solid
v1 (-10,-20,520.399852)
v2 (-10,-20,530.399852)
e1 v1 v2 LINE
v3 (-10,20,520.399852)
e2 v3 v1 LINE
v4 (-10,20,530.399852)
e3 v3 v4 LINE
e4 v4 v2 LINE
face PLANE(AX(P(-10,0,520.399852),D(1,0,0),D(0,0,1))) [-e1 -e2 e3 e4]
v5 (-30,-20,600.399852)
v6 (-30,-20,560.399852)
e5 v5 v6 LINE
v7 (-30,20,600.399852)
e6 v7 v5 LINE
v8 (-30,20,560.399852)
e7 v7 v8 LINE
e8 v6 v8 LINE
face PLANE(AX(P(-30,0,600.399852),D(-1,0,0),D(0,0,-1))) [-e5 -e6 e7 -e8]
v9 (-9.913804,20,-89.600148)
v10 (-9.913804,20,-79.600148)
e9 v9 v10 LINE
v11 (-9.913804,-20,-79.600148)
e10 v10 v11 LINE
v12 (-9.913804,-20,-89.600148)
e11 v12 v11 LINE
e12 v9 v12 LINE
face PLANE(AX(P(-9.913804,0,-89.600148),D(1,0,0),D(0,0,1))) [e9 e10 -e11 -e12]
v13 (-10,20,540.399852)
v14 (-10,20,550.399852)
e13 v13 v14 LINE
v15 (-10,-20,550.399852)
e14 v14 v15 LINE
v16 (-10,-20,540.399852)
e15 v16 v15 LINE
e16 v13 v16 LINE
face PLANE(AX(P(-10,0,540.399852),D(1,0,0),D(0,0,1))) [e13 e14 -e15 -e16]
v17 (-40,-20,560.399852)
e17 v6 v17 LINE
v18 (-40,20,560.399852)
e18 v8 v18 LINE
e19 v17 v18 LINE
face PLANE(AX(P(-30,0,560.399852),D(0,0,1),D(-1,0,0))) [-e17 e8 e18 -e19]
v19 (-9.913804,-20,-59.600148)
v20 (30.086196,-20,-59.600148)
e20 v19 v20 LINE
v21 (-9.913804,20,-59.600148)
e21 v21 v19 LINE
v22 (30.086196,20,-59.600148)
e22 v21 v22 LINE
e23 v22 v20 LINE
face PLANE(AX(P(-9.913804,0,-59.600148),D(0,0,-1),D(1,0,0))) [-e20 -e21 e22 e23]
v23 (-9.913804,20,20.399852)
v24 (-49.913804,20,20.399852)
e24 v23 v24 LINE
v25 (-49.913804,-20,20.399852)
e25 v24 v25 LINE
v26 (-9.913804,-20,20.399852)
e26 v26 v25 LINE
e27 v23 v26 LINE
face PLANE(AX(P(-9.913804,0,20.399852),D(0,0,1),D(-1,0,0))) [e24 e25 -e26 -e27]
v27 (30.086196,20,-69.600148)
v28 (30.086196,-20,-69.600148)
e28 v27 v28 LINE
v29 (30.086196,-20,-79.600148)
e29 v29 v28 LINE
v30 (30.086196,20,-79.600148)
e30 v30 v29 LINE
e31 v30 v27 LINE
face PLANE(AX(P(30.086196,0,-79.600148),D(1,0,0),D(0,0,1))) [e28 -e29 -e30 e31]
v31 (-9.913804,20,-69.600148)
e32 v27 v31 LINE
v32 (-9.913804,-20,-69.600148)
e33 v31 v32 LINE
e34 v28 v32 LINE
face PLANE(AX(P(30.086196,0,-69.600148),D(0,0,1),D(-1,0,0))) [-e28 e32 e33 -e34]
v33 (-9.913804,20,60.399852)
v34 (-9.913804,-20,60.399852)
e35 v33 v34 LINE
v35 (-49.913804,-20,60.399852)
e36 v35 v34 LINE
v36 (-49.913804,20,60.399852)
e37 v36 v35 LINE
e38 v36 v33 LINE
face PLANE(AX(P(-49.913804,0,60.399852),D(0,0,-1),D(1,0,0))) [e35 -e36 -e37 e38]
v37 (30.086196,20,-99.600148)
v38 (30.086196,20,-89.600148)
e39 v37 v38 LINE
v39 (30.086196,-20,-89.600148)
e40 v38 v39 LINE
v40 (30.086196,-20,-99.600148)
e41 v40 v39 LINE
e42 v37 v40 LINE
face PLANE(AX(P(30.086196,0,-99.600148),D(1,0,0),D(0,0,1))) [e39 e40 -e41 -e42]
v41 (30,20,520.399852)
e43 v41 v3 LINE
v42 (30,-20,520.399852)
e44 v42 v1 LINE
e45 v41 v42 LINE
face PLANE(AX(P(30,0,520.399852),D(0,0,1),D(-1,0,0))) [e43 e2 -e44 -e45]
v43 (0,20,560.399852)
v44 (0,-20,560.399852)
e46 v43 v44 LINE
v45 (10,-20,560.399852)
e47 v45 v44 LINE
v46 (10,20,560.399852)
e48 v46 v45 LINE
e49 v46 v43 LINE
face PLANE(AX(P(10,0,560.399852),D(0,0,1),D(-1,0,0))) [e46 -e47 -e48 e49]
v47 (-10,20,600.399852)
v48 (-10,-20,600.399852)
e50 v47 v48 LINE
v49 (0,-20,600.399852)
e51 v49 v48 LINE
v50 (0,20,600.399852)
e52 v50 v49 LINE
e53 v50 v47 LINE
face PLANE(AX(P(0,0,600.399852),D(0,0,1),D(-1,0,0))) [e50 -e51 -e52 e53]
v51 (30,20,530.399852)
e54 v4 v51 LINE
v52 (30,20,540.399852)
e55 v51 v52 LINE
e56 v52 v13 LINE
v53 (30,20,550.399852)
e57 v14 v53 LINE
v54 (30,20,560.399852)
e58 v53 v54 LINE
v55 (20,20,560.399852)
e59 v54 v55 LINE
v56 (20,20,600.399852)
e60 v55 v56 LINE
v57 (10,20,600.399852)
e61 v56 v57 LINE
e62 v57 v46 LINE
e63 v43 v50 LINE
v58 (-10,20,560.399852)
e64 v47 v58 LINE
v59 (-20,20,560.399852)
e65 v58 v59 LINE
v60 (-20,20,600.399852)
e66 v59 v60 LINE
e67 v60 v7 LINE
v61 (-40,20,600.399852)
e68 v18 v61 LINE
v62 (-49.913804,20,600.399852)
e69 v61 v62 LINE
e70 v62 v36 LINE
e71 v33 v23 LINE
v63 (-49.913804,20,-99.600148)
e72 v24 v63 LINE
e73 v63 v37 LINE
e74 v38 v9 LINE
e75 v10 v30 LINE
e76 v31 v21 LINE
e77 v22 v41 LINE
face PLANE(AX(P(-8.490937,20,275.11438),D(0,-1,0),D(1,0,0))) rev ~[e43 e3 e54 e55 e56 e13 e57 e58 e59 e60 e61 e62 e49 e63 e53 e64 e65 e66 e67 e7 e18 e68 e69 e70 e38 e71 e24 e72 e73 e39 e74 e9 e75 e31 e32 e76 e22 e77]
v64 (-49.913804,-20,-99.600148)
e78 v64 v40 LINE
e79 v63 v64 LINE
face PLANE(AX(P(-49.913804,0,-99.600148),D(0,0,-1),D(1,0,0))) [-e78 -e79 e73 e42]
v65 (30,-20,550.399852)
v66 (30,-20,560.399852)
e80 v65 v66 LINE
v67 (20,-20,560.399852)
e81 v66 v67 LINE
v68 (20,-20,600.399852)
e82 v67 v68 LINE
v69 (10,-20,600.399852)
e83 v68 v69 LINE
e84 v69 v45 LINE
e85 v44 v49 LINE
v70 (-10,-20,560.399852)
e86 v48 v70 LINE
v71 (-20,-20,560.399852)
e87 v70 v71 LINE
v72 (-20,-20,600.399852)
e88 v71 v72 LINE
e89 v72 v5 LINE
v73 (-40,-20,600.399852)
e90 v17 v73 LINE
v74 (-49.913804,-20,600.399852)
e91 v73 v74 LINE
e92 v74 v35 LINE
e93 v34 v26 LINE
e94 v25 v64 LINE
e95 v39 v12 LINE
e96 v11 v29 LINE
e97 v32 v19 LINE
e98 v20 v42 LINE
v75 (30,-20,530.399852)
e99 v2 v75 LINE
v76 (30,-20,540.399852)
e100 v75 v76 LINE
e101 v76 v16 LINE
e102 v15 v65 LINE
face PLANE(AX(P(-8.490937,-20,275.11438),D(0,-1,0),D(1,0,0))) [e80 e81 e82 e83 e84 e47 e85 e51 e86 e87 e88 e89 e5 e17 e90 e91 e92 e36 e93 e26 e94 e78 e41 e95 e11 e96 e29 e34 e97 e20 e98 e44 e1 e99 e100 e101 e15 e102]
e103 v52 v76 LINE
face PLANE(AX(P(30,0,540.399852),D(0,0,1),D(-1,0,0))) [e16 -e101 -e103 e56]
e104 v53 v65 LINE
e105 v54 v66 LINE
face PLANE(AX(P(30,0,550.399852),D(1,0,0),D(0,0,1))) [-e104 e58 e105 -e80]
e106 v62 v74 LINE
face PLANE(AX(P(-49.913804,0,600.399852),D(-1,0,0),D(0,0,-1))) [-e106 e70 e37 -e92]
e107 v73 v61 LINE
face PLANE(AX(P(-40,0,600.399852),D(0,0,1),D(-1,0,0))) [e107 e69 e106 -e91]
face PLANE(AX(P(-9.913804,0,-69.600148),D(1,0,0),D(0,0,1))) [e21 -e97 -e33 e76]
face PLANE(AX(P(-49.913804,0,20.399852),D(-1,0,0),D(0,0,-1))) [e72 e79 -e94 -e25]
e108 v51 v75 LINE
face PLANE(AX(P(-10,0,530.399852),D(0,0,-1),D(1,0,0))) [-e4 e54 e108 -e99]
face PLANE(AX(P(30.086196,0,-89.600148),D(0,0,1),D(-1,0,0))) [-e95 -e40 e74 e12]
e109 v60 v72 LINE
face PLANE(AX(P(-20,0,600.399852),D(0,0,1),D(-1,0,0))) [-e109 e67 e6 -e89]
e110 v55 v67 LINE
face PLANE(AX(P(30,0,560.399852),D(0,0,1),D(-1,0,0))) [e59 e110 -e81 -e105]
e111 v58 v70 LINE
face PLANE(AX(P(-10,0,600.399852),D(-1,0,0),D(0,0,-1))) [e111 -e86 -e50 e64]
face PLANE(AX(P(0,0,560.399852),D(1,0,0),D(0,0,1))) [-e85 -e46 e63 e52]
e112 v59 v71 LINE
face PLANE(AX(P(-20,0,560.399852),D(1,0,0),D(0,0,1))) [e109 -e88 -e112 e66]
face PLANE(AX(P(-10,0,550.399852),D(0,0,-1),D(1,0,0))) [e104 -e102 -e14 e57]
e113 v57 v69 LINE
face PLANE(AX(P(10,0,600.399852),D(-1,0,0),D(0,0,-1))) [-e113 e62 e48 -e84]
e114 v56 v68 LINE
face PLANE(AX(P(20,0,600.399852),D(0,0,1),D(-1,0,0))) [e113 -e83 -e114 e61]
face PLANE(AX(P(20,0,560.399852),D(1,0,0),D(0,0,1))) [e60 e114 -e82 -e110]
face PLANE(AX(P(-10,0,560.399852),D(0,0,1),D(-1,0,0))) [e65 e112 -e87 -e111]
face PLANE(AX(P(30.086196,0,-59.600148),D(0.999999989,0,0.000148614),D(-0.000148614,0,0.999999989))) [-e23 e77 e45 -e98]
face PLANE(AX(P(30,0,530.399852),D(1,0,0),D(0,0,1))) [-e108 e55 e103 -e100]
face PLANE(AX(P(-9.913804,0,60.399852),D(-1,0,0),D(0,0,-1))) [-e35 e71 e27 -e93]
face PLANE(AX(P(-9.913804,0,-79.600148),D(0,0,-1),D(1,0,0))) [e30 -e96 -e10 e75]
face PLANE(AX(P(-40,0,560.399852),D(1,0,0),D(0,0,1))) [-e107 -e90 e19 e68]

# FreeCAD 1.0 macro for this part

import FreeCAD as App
import Part
import Sketcher

V = App.Vector
Q = App.Units.Quantity

doc = App.newDocument("Part")
body = doc.addObject("PartDesign::Body", "Body")

sketch1 = body.newObject("Sketcher::SketchObject", "Sketch")
sketch1.AttachmentSupport = (doc.getObject("XZ_Plane"), [""])
sketch1.MapMode = "FlatFace"
sketch1.addGeometry([
    Part.LineSegment(V(-40, 600.399852, 0), V(-49.913804, 600.399852, 0)),
    Part.LineSegment(V(-49.913804, 600.399852, 0), V(-49.913804, 60.399852, 0)),
    Part.LineSegment(V(-49.913804, 60.399852, 0), V(-9.913804, 60.399852, 0)),
    Part.LineSegment(V(-9.913804, 60.399852, 0), V(-9.913804, 20.399852, 0)),
    Part.LineSegment(V(-9.913804, 20.399852, 0), V(-49.913804, 20.399852, 0)),
    Part.LineSegment(V(-49.913804, 20.399852, 0), V(-49.913804, -99.600148, 0)),
    Part.LineSegment(V(-49.913804, -99.600148, 0), V(30.086196, -99.600148, 0)),
    Part.LineSegment(V(30.086196, -99.600148, 0), V(30.086196, -89.600148, 0)),
    Part.LineSegment(V(30.086196, -89.600148, 0), V(-9.913804, -89.600148, 0)),
    Part.LineSegment(V(-9.913804, -89.600148, 0), V(-9.913804, -79.600148, 0)),
    Part.LineSegment(V(-9.913804, -79.600148, 0), V(30.086196, -79.600148, 0)),
    Part.LineSegment(V(30.086196, -79.600148, 0), V(30.086196, -69.600148, 0)),
    Part.LineSegment(V(30.086196, -69.600148, 0), V(-9.913804, -69.600148, 0)),
    Part.LineSegment(V(-9.913804, -69.600148, 0), V(-9.913804, -59.600148, 0)),
    Part.LineSegment(V(-9.913804, -59.600148, 0), V(30.086196, -59.600148, 0)),
    Part.LineSegment(V(30.086196, -59.600148, 0), V(30, 520.399852, 0)),
    Part.LineSegment(V(30, 520.399852, 0), V(-10, 520.399852, 0)),
    Part.LineSegment(V(-10, 520.399852, 0), V(-10, 530.399852, 0)),
    Part.LineSegment(V(-10, 530.399852, 0), V(30, 530.399852, 0)),
    Part.LineSegment(V(30, 530.399852, 0), V(30, 540.399852, 0)),
    Part.LineSegment(V(30, 540.399852, 0), V(-10, 540.399852, 0)),
    Part.LineSegment(V(-10, 540.399852, 0), V(-10, 550.399852, 0)),
    Part.LineSegment(V(-10, 550.399852, 0), V(30, 550.399852, 0)),
    Part.LineSegment(V(30, 550.399852, 0), V(30, 560.399852, 0)),
    Part.LineSegment(V(30, 560.399852, 0), V(20, 560.399852, 0)),
    Part.LineSegment(V(20, 560.399852, 0), V(20, 600.399852, 0)),
    Part.LineSegment(V(20, 600.399852, 0), V(10, 600.399852, 0)),
    Part.LineSegment(V(10, 600.399852, 0), V(10, 560.399852, 0)),
    Part.LineSegment(V(10, 560.399852, 0), V(0, 560.399852, 0)),
    Part.LineSegment(V(0, 560.399852, 0), V(0, 600.399852, 0)),
    Part.LineSegment(V(0, 600.399852, 0), V(-10, 600.399852, 0)),
    Part.LineSegment(V(-10, 600.399852, 0), V(-10, 560.399852, 0)),
    Part.LineSegment(V(-10, 560.399852, 0), V(-20, 560.399852, 0)),
    Part.LineSegment(V(-20, 560.399852, 0), V(-20, 600.399852, 0)),
    Part.LineSegment(V(-20, 600.399852, 0), V(-30, 600.399852, 0)),
    Part.LineSegment(V(-30, 600.399852, 0), V(-30, 560.399852, 0)),
    Part.LineSegment(V(-30, 560.399852, 0), V(-40, 560.399852, 0)),
    Part.LineSegment(V(-40, 560.399852, 0), V(-40, 600.399852, 0)),
], False)
sketch1.addConstraint([
    Sketcher.Constraint("Coincident", 0, 2, 1, 1),
    Sketcher.Constraint("Coincident", 1, 2, 2, 1),
    Sketcher.Constraint("Coincident", 2, 2, 3, 1),
    Sketcher.Constraint("Coincident", 3, 2, 4, 1),
    Sketcher.Constraint("Coincident", 4, 2, 5, 1),
    Sketcher.Constraint("Coincident", 5, 2, 6, 1),
    Sketcher.Constraint("Coincident", 6, 2, 7, 1),
    Sketcher.Constraint("Coincident", 7, 2, 8, 1),
    Sketcher.Constraint("Coincident", 8, 2, 9, 1),
    Sketcher.Constraint("Coincident", 9, 2, 10, 1),
    Sketcher.Constraint("Coincident", 10, 2, 11, 1),
    Sketcher.Constraint("Coincident", 11, 2, 12, 1),
    Sketcher.Constraint("Coincident", 12, 2, 13, 1),
    Sketcher.Constraint("Coincident", 13, 2, 14, 1),
    Sketcher.Constraint("Coincident", 14, 2, 15, 1),
    Sketcher.Constraint("Coincident", 15, 2, 16, 1),
    Sketcher.Constraint("Coincident", 16, 2, 17, 1),
    Sketcher.Constraint("Coincident", 17, 2, 18, 1),
    Sketcher.Constraint("Coincident", 18, 2, 19, 1),
    Sketcher.Constraint("Coincident", 19, 2, 20, 1),
    Sketcher.Constraint("Coincident", 20, 2, 21, 1),
    Sketcher.Constraint("Coincident", 21, 2, 22, 1),
    Sketcher.Constraint("Coincident", 22, 2, 23, 1),
    Sketcher.Constraint("Coincident", 23, 2, 24, 1),
    Sketcher.Constraint("Coincident", 24, 2, 25, 1),
    Sketcher.Constraint("Coincident", 25, 2, 26, 1),
    Sketcher.Constraint("Coincident", 26, 2, 27, 1),
    Sketcher.Constraint("Coincident", 27, 2, 28, 1),
    Sketcher.Constraint("Coincident", 28, 2, 29, 1),
    Sketcher.Constraint("Coincident", 29, 2, 30, 1),
    Sketcher.Constraint("Coincident", 30, 2, 31, 1),
    Sketcher.Constraint("Coincident", 31, 2, 32, 1),
    Sketcher.Constraint("Coincident", 32, 2, 33, 1),
    Sketcher.Constraint("Coincident", 33, 2, 34, 1),
    Sketcher.Constraint("Coincident", 34, 2, 35, 1),
    Sketcher.Constraint("Coincident", 35, 2, 36, 1),
    Sketcher.Constraint("Coincident", 36, 2, 37, 1),
    Sketcher.Constraint("Coincident", 37, 2, 0, 1),
    Sketcher.Constraint("Horizontal", 0),
    Sketcher.Constraint("Vertical", 1),
    Sketcher.Constraint("Horizontal", 2),
    Sketcher.Constraint("Vertical", 3),
    Sketcher.Constraint("Horizontal", 4),
    Sketcher.Constraint("Vertical", 5),
    Sketcher.Constraint("Horizontal", 6),
    Sketcher.Constraint("Vertical", 7),
    Sketcher.Constraint("Horizontal", 8),
    Sketcher.Constraint("Vertical", 9),
    Sketcher.Constraint("Horizontal", 10),
    Sketcher.Constraint("Vertical", 11),
    Sketcher.Constraint("Horizontal", 12),
    Sketcher.Constraint("Vertical", 13),
    Sketcher.Constraint("Horizontal", 14),
    Sketcher.Constraint("Horizontal", 16),
    Sketcher.Constraint("Vertical", 17),
    Sketcher.Constraint("Horizontal", 18),
    Sketcher.Constraint("Vertical", 19),
    Sketcher.Constraint("Horizontal", 20),
    Sketcher.Constraint("Vertical", 21),
    Sketcher.Constraint("Horizontal", 22),
    Sketcher.Constraint("Vertical", 23),
    Sketcher.Constraint("Horizontal", 24),
    Sketcher.Constraint("Vertical", 25),
    Sketcher.Constraint("Horizontal", 26),
    Sketcher.Constraint("Vertical", 27),
    Sketcher.Constraint("Horizontal", 28),
    Sketcher.Constraint("Vertical", 29),
    Sketcher.Constraint("Horizontal", 30),
    Sketcher.Constraint("Vertical", 31),
    Sketcher.Constraint("Horizontal", 32),
    Sketcher.Constraint("Vertical", 33),
    Sketcher.Constraint("Horizontal", 34),
    Sketcher.Constraint("Vertical", 35),
    Sketcher.Constraint("Horizontal", 36),
    Sketcher.Constraint("Vertical", 37),
    Sketcher.Constraint("Symmetric", 26, 2, 30, 2, -2),
    Sketcher.Constraint("Symmetric", 24, 2, 32, 2, -2),
    Sketcher.Constraint("Symmetric", 23, 2, 35, 2, -2),
    Sketcher.Constraint("PointOnObject", 28, 2, -2),
    Sketcher.Constraint("Horizontal", 0, 2, 25, 2),
    Sketcher.Constraint("Horizontal", 24, 2, 27, 2),
    Sketcher.Constraint("Horizontal", 30, 2, 33, 2),
    Sketcher.Constraint("Vertical", 1, 2, 4, 2),
    Sketcher.Constraint("Vertical", 3, 2, 8, 2),
    Sketcher.Constraint("Vertical", 7, 2, 10, 2),
    Sketcher.Constraint("Vertical", 9, 2, 12, 2),
    Sketcher.Constraint("Vertical", 11, 2, 14, 2),
    Sketcher.Constraint("Vertical", 15, 2, 18, 2),
    Sketcher.Constraint("Vertical", 17, 2, 20, 2),
    Sketcher.Constraint("Vertical", 19, 2, 22, 2),
    Sketcher.Constraint("Vertical", 21, 2, 30, 2),
    Sketcher.Constraint("Equal", 4, 8),
    Sketcher.Constraint("Equal", 14, 16),
    Sketcher.Constraint("Equal", 24, 26),
    Sketcher.Constraint("Equal", 26, 28),
    Sketcher.Constraint("Equal", 34, 36),
    Sketcher.Constraint("Equal", 22, 3),
    Sketcher.Constraint("Equal", 36, 7),
    Sketcher.Constraint("Equal", 7, 9),
    Sketcher.Constraint("Equal", 9, 11),
    Sketcher.Constraint("Equal", 11, 13),
    Sketcher.Constraint("Equal", 13, 17),
    Sketcher.Constraint("Equal", 17, 19),
    Sketcher.Constraint("Equal", 19, 21),
    Sketcher.Constraint("Equal", 21, 23),
    Sketcher.Constraint("Equal", 3, 25),
    Sketcher.Constraint("DistanceX", 2, 1, 2, 2, Q("40 mm")),
    Sketcher.Constraint("DistanceY", 1, 2, 1, 1, Q("540 mm")),
    Sketcher.Constraint("DistanceY", 5, 2, 5, 1, Q("120 mm")),
    Sketcher.Constraint("DistanceX", 0, 2, 0, 1, Q("9.913804 mm")),
    Sketcher.Constraint("DistanceY", -1, 1, 0, 2, Q("600.399852 mm")),
])
pad1 = body.newObject("PartDesign::Pad", "Pad")
pad1.Profile = sketch1
pad1.Length = 40
pad1.Midplane = True

doc.recompute()
